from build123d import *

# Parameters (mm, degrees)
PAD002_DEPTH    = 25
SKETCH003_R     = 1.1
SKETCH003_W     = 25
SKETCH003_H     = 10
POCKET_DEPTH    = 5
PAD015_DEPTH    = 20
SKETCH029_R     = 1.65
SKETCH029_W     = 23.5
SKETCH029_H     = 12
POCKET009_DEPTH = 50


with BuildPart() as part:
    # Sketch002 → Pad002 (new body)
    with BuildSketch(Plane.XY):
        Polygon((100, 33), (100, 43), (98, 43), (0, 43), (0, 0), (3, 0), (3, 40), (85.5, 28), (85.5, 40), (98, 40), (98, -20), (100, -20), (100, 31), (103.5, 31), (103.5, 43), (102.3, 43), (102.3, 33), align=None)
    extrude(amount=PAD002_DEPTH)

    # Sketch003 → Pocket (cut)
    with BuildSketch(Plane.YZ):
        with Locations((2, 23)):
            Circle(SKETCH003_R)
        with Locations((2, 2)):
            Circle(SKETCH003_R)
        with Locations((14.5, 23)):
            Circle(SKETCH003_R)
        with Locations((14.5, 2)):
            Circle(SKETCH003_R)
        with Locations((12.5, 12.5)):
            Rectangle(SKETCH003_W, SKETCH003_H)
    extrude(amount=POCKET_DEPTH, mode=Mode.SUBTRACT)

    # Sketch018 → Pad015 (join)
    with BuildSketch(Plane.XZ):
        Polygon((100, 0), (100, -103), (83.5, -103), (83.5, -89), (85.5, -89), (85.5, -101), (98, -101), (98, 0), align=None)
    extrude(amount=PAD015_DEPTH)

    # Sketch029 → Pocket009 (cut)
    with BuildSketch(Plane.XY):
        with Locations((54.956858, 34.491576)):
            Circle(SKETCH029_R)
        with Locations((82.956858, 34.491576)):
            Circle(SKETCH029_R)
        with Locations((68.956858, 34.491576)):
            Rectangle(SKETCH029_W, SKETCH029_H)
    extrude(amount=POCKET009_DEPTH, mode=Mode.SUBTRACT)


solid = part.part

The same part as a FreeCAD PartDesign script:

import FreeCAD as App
import Part
import Sketcher
from FreeCAD import Vector


def add_polygon(sketch, points):
    """Adds a closed chain of lines whose ends are joined by coincident constraints."""
    first, n = sketch.GeometryCount, len(points)
    for a, b in zip(points, points[1:] + points[:1]):
        sketch.addGeometry(Part.LineSegment(App.Vector(*a, 0), App.Vector(*b, 0)), False)
    for i in range(n):
        sketch.addConstraint(Sketcher.Constraint("Coincident", first + i, 2, first + (i + 1) % n, 1))

doc = App.newDocument("Part")
body = doc.addObject("PartDesign::Body", "Body")

# Sketch on XY plane
sketch1 = body.newObject("Sketcher::SketchObject", "Sketch")
sketch1.AttachmentSupport = (doc.getObject("XY_Plane"), [""])
sketch1.MapMode = "FlatFace"
add_polygon(sketch1, [(100, 33), (100, 43), (0, 43), (0, 0), (3, 0), (3, 40), (85.5, 28), (85.5, 40), (98, 40), (98, -20), (100, -20), (100, 31), (103.5, 31), (103.5, 43), (102.3, 43), (102.3, 33)])  # lines 0-15
sketch1.addConstraint([
    Sketcher.Constraint("Vertical", 0),
    Sketcher.Constraint("Horizontal", 1),
    Sketcher.Constraint("Vertical", 2),
    Sketcher.Constraint("Horizontal", 3),
    Sketcher.Constraint("Vertical", 4),
    Sketcher.Constraint("Vertical", 6),
    Sketcher.Constraint("Horizontal", 7),
    Sketcher.Constraint("Vertical", 8),
    Sketcher.Constraint("Horizontal", 9),
    Sketcher.Constraint("Vertical", 10),
    Sketcher.Constraint("Horizontal", 11),
    Sketcher.Constraint("Vertical", 12),
    Sketcher.Constraint("Horizontal", 13),
    Sketcher.Constraint("Vertical", 14),
    Sketcher.Constraint("Horizontal", 15),
    Sketcher.Constraint("Coincident", 2, 2, -1, 1),
    Sketcher.Constraint("Horizontal", 4, 2, 6, 2),
    Sketcher.Constraint("Horizontal", 1, 2, 12, 2),
    Sketcher.Constraint("Vertical", 0, 2, 9, 2),
    Sketcher.Constraint("Equal", 6, 12),
    Sketcher.Constraint("DistanceX", 1, 2, 1, 1, 100.0),
    Sketcher.Constraint("DistanceX", 3, 1, 3, 2, 3.0),
    Sketcher.Constraint("DistanceX", 9, 1, 9, 2, 2.0),
    Sketcher.Constraint("DistanceY", 0, 1, 0, 2, 10.0),
    Sketcher.Constraint("DistanceY", 2, 2, 2, 1, 43.0),
    Sketcher.Constraint("DistanceY", 4, 1, 4, 2, 40.0),
    Sketcher.Constraint("DistanceY", 6, 1, 6, 2, 12.0),
    Sketcher.Constraint("DistanceY", 8, 2, 8, 1, 60.0),
    Sketcher.Constraint("DistanceX", 7, 1, 7, 2, 12.5),
    Sketcher.Constraint("DistanceX", 11, 1, 11, 2, 3.5),
    Sketcher.Constraint("DistanceX", 13, 2, 13, 1, 1.2),
])
pad1 = body.newObject("PartDesign::Pad", "Pad")
pad1.Profile = sketch1
pad1.Length = 25

# Sketch on YZ plane
sketch2 = body.newObject("Sketcher::SketchObject", "Sketch001")
sketch2.AttachmentSupport = (doc.getObject("YZ_Plane"), [""])
sketch2.MapMode = "FlatFace"
sketch2.addGeometry(Part.Circle(Vector(2, 23, 0), Vector(0, 0, 1), 1.1), False)  # 0
sketch2.addGeometry(Part.Circle(Vector(2, 2, 0), Vector(0, 0, 1), 1.1), False)  # 1
sketch2.addGeometry(Part.Circle(Vector(14.5, 23, 0), Vector(0, 0, 1), 1.1), False)  # 2
sketch2.addGeometry(Part.Circle(Vector(14.5, 2, 0), Vector(0, 0, 1), 1.1), False)  # 3
add_polygon(sketch2, [(0, 17.5), (0, 7.5), (25, 7.5), (25, 17.5)])  # lines 4-7
sketch2.addConstraint([
    Sketcher.Constraint("Vertical", 4),
    Sketcher.Constraint("Horizontal", 5),
    Sketcher.Constraint("Vertical", 6),
    Sketcher.Constraint("Horizontal", 7),
    Sketcher.Constraint("Equal", 0, 1),
    Sketcher.Constraint("Equal", 1, 2),
    Sketcher.Constraint("Equal", 2, 3),
    Sketcher.Constraint("PointOnObject", 4, 2, -2),
    Sketcher.Constraint("Horizontal", 0, 3, 2, 3),
    Sketcher.Constraint("Horizontal", 1, 3, 3, 3),
    Sketcher.Constraint("Vertical", 0, 3, 1, 3),
    Sketcher.Constraint("Vertical", 2, 3, 3, 3),
    Sketcher.Constraint("Diameter", 0, 2.2),
    Sketcher.Constraint("DistanceX", 5, 1, 5, 2, 25.0),
    Sketcher.Constraint("DistanceY", 4, 2, 4, 1, 10.0),
    Sketcher.Constraint("DistanceX", -1, 1, 0, 3, 2.0),
    Sketcher.Constraint("DistanceY", -1, 1, 0, 3, 23.0),
    Sketcher.Constraint("DistanceY", -1, 1, 1, 3, 2.0),
    Sketcher.Constraint("DistanceX", -1, 1, 2, 3, 14.5),
    Sketcher.Constraint("DistanceY", -1, 1, 4, 2, 7.5),
])
pocket1 = body.newObject("PartDesign::Pocket", "Pocket")
pocket1.Profile = sketch2
pocket1.Length = 5
pocket1.Reversed = True

# Sketch on XZ plane
sketch3 = body.newObject("Sketcher::SketchObject", "Sketch002")
sketch3.AttachmentSupport = (doc.getObject("XZ_Plane"), [""])
sketch3.MapMode = "FlatFace"
add_polygon(sketch3, [(100, -103), (100, 0), (98, 0), (98, -101), (85.5, -101), (85.5, -89), (83.5, -89), (83.5, -103)])  # lines 0-7
sketch3.addConstraint([
    Sketcher.Constraint("Vertical", 0),
    Sketcher.Constraint("Horizontal", 1),
    Sketcher.Constraint("Vertical", 2),
    Sketcher.Constraint("Horizontal", 3),
    Sketcher.Constraint("Vertical", 4),
    Sketcher.Constraint("Horizontal", 5),
    Sketcher.Constraint("Vertical", 6),
    Sketcher.Constraint("Horizontal", 7),
    Sketcher.Constraint("PointOnObject", 0, 2, -1),
    Sketcher.Constraint("Equal", 1, 5),
    Sketcher.Constraint("DistanceX", 1, 2, 1, 1, 2.0),
    Sketcher.Constraint("DistanceY", 0, 1, 0, 2, 103.0),
    Sketcher.Constraint("DistanceY", 2, 2, 2, 1, 101.0),
    Sketcher.Constraint("DistanceY", 4, 1, 4, 2, 12.0),
    Sketcher.Constraint("DistanceX", 3, 2, 3, 1, 12.5),
    Sketcher.Constraint("DistanceX", -1, 1, 0, 2, 100.0),
])
pad2 = body.newObject("PartDesign::Pad", "Pad001")
pad2.Profile = sketch3
pad2.Length = 20

# Sketch on XY plane
sketch4 = body.newObject("Sketcher::SketchObject", "Sketch003")
sketch4.AttachmentSupport = (doc.getObject("XY_Plane"), [""])
sketch4.MapMode = "FlatFace"
sketch4.addGeometry(Part.Circle(Vector(55, 34.5, 0), Vector(0, 0, 1), 1.6), False)  # 0
sketch4.addGeometry(Part.Circle(Vector(83, 34.5, 0), Vector(0, 0, 1), 1.6), False)  # 1
add_polygon(sketch4, [(57.2, 40.5), (57.2, 28.5), (80.7, 28.5), (80.7, 40.5)])  # lines 2-5
sketch4.addConstraint([
    Sketcher.Constraint("Vertical", 2),
    Sketcher.Constraint("Horizontal", 3),
    Sketcher.Constraint("Vertical", 4),
    Sketcher.Constraint("Horizontal", 5),
    Sketcher.Constraint("Equal", 0, 1),
    Sketcher.Constraint("Horizontal", 0, 3, 1, 3),
    Sketcher.Constraint("Diameter", 0, 3.3),
    Sketcher.Constraint("DistanceY", 2, 2, 2, 1, 12.0),
    Sketcher.Constraint("DistanceX", 3, 1, 3, 2, 23.5),
    Sketcher.Constraint("DistanceX", 0, 3, 1, 3, 28.0),
    Sketcher.Constraint("DistanceY", 2, 2, 0, 3, 6.0),
    Sketcher.Constraint("DistanceX", 0, 3, 2, 2, 2.25),
    Sketcher.Constraint("DistanceX", -1, 1, 0, 3, 54.956858),
    Sketcher.Constraint("DistanceY", -1, 1, 0, 3, 34.491576),
])
pocket2 = body.newObject("PartDesign::Pocket", "Pocket001")
pocket2.Profile = sketch4
pocket2.Length = 50
pocket2.Reversed = True

doc.recompute()
